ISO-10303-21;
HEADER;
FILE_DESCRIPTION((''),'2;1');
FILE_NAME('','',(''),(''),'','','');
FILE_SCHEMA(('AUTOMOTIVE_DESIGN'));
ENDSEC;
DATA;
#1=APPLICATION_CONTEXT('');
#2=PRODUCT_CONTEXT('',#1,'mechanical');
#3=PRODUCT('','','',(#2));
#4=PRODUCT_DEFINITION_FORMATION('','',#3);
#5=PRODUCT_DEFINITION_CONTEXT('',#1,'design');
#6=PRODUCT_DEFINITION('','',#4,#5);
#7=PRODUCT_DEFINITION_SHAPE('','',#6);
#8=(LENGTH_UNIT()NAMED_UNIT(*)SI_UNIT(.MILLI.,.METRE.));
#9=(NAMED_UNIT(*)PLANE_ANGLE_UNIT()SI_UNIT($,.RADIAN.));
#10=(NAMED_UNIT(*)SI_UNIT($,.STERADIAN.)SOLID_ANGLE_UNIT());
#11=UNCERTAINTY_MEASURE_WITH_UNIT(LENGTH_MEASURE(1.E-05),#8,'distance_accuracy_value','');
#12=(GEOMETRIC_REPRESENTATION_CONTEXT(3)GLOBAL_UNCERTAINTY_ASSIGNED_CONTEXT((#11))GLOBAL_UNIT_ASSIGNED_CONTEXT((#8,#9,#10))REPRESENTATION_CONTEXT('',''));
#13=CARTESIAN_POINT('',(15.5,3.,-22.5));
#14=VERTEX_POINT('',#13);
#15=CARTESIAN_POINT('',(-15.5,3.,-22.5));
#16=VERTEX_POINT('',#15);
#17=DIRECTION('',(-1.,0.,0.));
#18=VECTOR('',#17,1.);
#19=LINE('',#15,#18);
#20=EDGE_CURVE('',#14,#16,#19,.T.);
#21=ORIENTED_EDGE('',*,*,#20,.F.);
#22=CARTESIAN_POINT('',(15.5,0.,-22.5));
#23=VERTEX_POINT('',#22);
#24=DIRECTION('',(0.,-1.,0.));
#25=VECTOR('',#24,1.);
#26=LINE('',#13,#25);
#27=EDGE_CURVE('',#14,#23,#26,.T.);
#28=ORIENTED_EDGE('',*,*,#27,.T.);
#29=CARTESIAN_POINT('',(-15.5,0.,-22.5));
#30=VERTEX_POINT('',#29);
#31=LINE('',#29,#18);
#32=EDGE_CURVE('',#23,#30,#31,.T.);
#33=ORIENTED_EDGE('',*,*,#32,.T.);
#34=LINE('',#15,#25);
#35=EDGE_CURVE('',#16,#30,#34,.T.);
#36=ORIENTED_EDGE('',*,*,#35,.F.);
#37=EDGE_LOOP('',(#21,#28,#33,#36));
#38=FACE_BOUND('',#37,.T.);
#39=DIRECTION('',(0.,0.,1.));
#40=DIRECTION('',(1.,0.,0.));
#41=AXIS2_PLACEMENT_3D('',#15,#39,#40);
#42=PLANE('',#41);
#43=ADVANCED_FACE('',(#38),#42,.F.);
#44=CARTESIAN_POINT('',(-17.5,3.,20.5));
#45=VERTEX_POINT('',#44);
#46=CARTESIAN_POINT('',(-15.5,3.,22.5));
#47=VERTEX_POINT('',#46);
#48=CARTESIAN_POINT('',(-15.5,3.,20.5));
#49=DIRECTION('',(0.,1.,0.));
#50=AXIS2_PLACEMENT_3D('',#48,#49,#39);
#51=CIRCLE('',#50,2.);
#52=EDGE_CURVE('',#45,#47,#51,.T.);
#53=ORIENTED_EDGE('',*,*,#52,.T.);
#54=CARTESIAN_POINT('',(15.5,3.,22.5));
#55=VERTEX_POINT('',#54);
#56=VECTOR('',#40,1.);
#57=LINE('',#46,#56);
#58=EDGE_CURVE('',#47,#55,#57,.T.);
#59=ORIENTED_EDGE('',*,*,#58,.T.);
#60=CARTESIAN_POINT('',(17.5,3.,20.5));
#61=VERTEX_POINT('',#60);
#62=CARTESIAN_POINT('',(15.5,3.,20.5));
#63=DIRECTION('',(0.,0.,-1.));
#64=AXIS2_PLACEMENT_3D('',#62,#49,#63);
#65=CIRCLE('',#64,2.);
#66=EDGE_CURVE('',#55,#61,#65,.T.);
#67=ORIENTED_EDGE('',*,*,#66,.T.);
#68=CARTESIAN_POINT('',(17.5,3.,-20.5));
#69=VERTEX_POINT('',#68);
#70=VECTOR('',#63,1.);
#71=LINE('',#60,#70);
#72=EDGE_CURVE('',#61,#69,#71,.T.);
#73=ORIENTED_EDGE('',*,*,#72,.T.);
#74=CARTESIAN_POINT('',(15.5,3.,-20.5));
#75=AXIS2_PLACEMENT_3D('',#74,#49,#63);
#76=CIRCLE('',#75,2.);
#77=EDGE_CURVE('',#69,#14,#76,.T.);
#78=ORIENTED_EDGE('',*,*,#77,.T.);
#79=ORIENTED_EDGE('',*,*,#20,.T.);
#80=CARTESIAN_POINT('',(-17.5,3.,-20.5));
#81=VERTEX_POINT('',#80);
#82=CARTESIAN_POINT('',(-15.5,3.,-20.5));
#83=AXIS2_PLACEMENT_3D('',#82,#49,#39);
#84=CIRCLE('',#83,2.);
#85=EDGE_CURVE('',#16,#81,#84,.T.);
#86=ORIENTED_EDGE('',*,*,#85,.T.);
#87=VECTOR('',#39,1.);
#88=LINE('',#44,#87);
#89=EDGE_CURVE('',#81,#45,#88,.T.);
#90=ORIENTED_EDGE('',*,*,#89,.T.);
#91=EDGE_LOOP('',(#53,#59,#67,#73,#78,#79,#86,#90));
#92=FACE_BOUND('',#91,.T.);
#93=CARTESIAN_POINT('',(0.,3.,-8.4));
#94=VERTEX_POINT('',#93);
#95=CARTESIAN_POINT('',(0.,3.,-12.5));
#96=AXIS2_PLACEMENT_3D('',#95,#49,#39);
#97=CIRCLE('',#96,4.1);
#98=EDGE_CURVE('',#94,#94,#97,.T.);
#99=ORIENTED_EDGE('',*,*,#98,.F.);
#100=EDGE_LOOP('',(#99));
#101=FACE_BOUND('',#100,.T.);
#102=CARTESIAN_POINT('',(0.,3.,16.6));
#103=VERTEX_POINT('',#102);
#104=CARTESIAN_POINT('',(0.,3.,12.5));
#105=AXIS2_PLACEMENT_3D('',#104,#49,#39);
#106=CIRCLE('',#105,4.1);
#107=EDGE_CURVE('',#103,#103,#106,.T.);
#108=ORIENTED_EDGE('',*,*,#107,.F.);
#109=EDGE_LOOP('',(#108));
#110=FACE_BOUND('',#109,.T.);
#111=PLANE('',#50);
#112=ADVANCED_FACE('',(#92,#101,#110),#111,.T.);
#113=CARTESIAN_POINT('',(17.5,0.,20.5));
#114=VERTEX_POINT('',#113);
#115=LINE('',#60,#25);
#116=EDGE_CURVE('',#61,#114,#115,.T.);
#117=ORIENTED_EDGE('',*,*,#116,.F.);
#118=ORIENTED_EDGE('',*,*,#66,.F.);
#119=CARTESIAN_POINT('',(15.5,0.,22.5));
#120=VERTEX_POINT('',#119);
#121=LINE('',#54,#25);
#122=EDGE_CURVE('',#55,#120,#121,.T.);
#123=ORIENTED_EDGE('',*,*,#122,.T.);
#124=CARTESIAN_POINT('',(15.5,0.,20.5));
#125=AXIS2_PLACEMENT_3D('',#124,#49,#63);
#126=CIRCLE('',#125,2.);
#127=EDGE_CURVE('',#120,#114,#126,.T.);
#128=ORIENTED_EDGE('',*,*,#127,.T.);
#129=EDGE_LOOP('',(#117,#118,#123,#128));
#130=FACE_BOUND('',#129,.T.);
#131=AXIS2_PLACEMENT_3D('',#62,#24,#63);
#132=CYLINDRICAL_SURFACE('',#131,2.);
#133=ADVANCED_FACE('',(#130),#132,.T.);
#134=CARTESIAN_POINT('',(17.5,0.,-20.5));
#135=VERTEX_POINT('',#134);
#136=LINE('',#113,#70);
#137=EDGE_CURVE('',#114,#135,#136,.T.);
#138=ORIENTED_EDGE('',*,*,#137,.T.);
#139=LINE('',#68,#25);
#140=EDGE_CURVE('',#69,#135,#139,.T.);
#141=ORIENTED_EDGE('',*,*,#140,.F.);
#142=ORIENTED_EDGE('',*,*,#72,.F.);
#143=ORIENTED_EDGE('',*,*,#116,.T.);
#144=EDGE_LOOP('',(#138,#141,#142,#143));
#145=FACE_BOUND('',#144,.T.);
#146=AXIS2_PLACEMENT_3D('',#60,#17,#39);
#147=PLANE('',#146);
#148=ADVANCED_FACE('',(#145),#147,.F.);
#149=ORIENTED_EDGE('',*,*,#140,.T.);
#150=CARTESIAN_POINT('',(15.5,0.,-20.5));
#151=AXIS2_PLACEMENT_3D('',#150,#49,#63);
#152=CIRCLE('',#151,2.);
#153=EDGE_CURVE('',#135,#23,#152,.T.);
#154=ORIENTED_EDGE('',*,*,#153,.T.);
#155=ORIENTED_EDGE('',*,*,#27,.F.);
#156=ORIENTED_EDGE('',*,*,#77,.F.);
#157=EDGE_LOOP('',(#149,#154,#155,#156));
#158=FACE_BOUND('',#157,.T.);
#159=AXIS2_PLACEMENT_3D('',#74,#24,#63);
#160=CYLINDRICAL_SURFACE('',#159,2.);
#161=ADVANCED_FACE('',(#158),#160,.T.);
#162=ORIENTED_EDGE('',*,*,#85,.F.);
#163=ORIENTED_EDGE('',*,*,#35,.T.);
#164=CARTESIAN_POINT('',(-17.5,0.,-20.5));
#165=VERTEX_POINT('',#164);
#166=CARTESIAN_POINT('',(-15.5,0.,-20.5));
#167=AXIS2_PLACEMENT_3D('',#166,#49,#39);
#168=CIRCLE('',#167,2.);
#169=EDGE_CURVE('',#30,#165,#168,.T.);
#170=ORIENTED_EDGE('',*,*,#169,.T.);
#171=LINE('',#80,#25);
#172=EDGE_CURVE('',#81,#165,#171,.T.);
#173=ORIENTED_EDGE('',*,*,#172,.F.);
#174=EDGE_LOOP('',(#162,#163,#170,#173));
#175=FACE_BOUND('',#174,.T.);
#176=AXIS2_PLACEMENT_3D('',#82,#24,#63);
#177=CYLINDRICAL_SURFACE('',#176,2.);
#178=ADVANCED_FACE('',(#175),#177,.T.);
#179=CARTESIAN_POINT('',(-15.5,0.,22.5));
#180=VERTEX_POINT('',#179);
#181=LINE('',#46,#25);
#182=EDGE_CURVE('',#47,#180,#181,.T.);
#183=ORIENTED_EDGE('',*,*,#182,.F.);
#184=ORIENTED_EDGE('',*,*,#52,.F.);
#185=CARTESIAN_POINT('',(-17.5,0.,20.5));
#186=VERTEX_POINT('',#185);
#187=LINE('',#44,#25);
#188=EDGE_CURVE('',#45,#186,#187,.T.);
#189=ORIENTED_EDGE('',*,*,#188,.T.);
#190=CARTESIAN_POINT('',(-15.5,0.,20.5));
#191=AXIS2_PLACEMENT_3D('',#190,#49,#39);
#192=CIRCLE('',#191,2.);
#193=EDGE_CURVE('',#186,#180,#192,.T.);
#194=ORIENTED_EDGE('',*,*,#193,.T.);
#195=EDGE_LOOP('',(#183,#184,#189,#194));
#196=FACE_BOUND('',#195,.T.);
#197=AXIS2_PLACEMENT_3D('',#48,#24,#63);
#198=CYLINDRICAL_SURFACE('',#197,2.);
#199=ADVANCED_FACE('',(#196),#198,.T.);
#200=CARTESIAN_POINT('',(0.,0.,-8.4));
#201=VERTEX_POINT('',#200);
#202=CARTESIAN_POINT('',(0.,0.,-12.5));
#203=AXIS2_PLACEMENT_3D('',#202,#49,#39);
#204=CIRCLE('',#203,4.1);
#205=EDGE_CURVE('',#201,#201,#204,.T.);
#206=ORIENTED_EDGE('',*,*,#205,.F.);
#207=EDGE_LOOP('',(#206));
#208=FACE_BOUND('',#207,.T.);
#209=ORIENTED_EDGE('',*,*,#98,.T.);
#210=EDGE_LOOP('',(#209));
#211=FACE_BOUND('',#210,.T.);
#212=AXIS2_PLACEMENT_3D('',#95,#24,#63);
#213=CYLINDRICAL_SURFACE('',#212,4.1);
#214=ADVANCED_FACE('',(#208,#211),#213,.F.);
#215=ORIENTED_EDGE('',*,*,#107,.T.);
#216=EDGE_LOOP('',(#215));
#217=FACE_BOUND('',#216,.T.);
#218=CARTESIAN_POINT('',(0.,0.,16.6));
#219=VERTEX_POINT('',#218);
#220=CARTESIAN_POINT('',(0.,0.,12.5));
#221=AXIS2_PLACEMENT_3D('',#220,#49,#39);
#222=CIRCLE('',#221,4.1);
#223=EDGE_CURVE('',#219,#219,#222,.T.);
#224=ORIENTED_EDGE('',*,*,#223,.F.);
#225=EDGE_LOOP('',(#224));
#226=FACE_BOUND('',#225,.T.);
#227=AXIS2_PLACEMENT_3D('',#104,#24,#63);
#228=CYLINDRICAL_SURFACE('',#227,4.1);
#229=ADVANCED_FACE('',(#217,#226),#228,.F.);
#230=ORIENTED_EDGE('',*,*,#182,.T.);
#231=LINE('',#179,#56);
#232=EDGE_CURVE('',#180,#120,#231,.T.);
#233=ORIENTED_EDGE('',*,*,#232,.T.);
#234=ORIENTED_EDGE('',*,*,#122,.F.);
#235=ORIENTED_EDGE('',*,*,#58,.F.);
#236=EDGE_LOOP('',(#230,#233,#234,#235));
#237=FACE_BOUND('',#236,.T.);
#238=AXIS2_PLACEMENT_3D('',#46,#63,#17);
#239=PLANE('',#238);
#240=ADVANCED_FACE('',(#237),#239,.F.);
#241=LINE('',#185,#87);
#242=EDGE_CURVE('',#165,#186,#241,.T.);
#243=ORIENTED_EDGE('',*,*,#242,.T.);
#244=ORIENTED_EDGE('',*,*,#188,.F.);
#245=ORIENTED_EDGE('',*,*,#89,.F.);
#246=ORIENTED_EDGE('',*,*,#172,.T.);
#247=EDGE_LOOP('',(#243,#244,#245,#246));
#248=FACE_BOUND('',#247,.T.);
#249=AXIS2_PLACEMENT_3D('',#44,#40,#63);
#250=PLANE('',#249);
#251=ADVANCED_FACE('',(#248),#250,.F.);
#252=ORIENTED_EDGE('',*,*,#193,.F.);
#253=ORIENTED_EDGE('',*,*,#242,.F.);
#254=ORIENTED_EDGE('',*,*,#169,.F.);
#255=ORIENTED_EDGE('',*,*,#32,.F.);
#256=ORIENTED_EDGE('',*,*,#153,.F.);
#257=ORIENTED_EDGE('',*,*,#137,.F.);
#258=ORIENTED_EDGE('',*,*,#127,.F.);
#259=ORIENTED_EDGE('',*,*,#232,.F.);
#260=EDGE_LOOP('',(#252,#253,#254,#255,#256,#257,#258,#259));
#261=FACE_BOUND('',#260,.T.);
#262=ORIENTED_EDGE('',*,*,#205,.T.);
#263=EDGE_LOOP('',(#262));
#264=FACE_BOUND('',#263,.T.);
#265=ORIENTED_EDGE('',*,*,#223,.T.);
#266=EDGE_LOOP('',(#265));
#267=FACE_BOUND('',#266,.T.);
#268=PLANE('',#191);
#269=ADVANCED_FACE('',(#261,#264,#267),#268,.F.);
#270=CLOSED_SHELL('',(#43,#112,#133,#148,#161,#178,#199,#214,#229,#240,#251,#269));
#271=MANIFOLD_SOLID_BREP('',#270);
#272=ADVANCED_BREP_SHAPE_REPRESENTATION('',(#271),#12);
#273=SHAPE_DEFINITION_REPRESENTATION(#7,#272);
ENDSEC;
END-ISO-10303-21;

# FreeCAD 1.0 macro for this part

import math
import FreeCAD as App
import Part
import Sketcher

doc = App.newDocument("Part")
body = doc.addObject("PartDesign::Body", "Body")

# Sketch on XZ plane
sketch1 = doc.addObject("Sketcher::SketchObject", "Sketch")
body.addObject(sketch1)
sketch1.AttachmentSupport = (doc.XZ_Plane, [""])
sketch1.MapMode = "FlatFace"
sketch1.addGeometry(Part.LineSegment(App.Vector(-15.5, 22.5, 0), App.Vector(15.5, 22.5, 0)), False)
sketch1.addGeometry(Part.ArcOfCircle(Part.Circle(App.Vector(15.5, 20.5, 0), App.Vector(0, 0, 1), 2), math.radians(0), math.radians(90)), False)
sketch1.addGeometry(Part.LineSegment(App.Vector(17.5, 20.5, 0), App.Vector(17.5, -20.5, 0)), False)
sketch1.addGeometry(Part.ArcOfCircle(Part.Circle(App.Vector(15.5, -20.5, 0), App.Vector(0, 0, 1), 2), math.radians(-90), math.radians(0)), False)
sketch1.addGeometry(Part.LineSegment(App.Vector(15.5, -22.5, 0), App.Vector(-15.5, -22.5, 0)), False)
sketch1.addGeometry(Part.ArcOfCircle(Part.Circle(App.Vector(-15.5, -20.5, 0), App.Vector(0, 0, 1), 2), math.radians(-180), math.radians(-90)), False)
sketch1.addGeometry(Part.LineSegment(App.Vector(-17.5, -20.5, 0), App.Vector(-17.5, 20.5, 0)), False)
sketch1.addGeometry(Part.ArcOfCircle(Part.Circle(App.Vector(-15.5, 20.5, 0), App.Vector(0, 0, 1), 2), math.radians(90), math.radians(180)), False)
sketch1.addGeometry(Part.Circle(App.Vector(0, 12.5, 0), App.Vector(0, 0, 1), 4.1), False)
sketch1.addGeometry(Part.Circle(App.Vector(0, -12.5, 0), App.Vector(0, 0, 1), 4.1), False)
sketch1.addConstraint(Sketcher.Constraint("Tangent", 0, 2, 1, 2))
sketch1.addConstraint(Sketcher.Constraint("Tangent", 1, 1, 2, 1))
sketch1.addConstraint(Sketcher.Constraint("Tangent", 2, 2, 3, 2))
sketch1.addConstraint(Sketcher.Constraint("Tangent", 3, 1, 4, 1))
sketch1.addConstraint(Sketcher.Constraint("Tangent", 4, 2, 5, 2))
sketch1.addConstraint(Sketcher.Constraint("Tangent", 5, 1, 6, 1))
sketch1.addConstraint(Sketcher.Constraint("Tangent", 6, 2, 7, 2))
sketch1.addConstraint(Sketcher.Constraint("Tangent", 7, 1, 0, 1))
sketch1.addConstraint(Sketcher.Constraint("Horizontal", 0))
sketch1.addConstraint(Sketcher.Constraint("Vertical", 2))
sketch1.addConstraint(Sketcher.Constraint("Horizontal", 4))
sketch1.addConstraint(Sketcher.Constraint("Vertical", 6))
sketch1.addConstraint(Sketcher.Constraint("Equal", 1, 3))
sketch1.addConstraint(Sketcher.Constraint("Equal", 3, 5))
sketch1.addConstraint(Sketcher.Constraint("Equal", 5, 7))
sketch1.addConstraint(Sketcher.Constraint("Equal", 8, 9))
sketch1.addConstraint(Sketcher.Constraint("Symmetric", 1, 3, 5, 3, -1, 1))
sketch1.addConstraint(Sketcher.Constraint("Symmetric", 8, 3, 9, 3, -1, 1))
sketch1.addConstraint(Sketcher.Constraint("PointOnObject", 8, 3, -2))
sketch1.addConstraint(Sketcher.Constraint("Radius", 1, 2.0))
sketch1.addConstraint(Sketcher.Constraint("Diameter", 8, 8.2))
sketch1.addConstraint(Sketcher.Constraint("DistanceX", 0, 1, 0, 2, 31.0))
sketch1.addConstraint(Sketcher.Constraint("DistanceY", 2, 2, 2, 1, 41.0))
sketch1.addConstraint(Sketcher.Constraint("DistanceY", 8, 3, 1, 3, 8.0))
pad1 = doc.addObject("PartDesign::Pad", "Pad")
body.addObject(pad1)
pad1.Profile = sketch1
pad1.Length = 3
pad1.Reversed = True

doc.recompute()
